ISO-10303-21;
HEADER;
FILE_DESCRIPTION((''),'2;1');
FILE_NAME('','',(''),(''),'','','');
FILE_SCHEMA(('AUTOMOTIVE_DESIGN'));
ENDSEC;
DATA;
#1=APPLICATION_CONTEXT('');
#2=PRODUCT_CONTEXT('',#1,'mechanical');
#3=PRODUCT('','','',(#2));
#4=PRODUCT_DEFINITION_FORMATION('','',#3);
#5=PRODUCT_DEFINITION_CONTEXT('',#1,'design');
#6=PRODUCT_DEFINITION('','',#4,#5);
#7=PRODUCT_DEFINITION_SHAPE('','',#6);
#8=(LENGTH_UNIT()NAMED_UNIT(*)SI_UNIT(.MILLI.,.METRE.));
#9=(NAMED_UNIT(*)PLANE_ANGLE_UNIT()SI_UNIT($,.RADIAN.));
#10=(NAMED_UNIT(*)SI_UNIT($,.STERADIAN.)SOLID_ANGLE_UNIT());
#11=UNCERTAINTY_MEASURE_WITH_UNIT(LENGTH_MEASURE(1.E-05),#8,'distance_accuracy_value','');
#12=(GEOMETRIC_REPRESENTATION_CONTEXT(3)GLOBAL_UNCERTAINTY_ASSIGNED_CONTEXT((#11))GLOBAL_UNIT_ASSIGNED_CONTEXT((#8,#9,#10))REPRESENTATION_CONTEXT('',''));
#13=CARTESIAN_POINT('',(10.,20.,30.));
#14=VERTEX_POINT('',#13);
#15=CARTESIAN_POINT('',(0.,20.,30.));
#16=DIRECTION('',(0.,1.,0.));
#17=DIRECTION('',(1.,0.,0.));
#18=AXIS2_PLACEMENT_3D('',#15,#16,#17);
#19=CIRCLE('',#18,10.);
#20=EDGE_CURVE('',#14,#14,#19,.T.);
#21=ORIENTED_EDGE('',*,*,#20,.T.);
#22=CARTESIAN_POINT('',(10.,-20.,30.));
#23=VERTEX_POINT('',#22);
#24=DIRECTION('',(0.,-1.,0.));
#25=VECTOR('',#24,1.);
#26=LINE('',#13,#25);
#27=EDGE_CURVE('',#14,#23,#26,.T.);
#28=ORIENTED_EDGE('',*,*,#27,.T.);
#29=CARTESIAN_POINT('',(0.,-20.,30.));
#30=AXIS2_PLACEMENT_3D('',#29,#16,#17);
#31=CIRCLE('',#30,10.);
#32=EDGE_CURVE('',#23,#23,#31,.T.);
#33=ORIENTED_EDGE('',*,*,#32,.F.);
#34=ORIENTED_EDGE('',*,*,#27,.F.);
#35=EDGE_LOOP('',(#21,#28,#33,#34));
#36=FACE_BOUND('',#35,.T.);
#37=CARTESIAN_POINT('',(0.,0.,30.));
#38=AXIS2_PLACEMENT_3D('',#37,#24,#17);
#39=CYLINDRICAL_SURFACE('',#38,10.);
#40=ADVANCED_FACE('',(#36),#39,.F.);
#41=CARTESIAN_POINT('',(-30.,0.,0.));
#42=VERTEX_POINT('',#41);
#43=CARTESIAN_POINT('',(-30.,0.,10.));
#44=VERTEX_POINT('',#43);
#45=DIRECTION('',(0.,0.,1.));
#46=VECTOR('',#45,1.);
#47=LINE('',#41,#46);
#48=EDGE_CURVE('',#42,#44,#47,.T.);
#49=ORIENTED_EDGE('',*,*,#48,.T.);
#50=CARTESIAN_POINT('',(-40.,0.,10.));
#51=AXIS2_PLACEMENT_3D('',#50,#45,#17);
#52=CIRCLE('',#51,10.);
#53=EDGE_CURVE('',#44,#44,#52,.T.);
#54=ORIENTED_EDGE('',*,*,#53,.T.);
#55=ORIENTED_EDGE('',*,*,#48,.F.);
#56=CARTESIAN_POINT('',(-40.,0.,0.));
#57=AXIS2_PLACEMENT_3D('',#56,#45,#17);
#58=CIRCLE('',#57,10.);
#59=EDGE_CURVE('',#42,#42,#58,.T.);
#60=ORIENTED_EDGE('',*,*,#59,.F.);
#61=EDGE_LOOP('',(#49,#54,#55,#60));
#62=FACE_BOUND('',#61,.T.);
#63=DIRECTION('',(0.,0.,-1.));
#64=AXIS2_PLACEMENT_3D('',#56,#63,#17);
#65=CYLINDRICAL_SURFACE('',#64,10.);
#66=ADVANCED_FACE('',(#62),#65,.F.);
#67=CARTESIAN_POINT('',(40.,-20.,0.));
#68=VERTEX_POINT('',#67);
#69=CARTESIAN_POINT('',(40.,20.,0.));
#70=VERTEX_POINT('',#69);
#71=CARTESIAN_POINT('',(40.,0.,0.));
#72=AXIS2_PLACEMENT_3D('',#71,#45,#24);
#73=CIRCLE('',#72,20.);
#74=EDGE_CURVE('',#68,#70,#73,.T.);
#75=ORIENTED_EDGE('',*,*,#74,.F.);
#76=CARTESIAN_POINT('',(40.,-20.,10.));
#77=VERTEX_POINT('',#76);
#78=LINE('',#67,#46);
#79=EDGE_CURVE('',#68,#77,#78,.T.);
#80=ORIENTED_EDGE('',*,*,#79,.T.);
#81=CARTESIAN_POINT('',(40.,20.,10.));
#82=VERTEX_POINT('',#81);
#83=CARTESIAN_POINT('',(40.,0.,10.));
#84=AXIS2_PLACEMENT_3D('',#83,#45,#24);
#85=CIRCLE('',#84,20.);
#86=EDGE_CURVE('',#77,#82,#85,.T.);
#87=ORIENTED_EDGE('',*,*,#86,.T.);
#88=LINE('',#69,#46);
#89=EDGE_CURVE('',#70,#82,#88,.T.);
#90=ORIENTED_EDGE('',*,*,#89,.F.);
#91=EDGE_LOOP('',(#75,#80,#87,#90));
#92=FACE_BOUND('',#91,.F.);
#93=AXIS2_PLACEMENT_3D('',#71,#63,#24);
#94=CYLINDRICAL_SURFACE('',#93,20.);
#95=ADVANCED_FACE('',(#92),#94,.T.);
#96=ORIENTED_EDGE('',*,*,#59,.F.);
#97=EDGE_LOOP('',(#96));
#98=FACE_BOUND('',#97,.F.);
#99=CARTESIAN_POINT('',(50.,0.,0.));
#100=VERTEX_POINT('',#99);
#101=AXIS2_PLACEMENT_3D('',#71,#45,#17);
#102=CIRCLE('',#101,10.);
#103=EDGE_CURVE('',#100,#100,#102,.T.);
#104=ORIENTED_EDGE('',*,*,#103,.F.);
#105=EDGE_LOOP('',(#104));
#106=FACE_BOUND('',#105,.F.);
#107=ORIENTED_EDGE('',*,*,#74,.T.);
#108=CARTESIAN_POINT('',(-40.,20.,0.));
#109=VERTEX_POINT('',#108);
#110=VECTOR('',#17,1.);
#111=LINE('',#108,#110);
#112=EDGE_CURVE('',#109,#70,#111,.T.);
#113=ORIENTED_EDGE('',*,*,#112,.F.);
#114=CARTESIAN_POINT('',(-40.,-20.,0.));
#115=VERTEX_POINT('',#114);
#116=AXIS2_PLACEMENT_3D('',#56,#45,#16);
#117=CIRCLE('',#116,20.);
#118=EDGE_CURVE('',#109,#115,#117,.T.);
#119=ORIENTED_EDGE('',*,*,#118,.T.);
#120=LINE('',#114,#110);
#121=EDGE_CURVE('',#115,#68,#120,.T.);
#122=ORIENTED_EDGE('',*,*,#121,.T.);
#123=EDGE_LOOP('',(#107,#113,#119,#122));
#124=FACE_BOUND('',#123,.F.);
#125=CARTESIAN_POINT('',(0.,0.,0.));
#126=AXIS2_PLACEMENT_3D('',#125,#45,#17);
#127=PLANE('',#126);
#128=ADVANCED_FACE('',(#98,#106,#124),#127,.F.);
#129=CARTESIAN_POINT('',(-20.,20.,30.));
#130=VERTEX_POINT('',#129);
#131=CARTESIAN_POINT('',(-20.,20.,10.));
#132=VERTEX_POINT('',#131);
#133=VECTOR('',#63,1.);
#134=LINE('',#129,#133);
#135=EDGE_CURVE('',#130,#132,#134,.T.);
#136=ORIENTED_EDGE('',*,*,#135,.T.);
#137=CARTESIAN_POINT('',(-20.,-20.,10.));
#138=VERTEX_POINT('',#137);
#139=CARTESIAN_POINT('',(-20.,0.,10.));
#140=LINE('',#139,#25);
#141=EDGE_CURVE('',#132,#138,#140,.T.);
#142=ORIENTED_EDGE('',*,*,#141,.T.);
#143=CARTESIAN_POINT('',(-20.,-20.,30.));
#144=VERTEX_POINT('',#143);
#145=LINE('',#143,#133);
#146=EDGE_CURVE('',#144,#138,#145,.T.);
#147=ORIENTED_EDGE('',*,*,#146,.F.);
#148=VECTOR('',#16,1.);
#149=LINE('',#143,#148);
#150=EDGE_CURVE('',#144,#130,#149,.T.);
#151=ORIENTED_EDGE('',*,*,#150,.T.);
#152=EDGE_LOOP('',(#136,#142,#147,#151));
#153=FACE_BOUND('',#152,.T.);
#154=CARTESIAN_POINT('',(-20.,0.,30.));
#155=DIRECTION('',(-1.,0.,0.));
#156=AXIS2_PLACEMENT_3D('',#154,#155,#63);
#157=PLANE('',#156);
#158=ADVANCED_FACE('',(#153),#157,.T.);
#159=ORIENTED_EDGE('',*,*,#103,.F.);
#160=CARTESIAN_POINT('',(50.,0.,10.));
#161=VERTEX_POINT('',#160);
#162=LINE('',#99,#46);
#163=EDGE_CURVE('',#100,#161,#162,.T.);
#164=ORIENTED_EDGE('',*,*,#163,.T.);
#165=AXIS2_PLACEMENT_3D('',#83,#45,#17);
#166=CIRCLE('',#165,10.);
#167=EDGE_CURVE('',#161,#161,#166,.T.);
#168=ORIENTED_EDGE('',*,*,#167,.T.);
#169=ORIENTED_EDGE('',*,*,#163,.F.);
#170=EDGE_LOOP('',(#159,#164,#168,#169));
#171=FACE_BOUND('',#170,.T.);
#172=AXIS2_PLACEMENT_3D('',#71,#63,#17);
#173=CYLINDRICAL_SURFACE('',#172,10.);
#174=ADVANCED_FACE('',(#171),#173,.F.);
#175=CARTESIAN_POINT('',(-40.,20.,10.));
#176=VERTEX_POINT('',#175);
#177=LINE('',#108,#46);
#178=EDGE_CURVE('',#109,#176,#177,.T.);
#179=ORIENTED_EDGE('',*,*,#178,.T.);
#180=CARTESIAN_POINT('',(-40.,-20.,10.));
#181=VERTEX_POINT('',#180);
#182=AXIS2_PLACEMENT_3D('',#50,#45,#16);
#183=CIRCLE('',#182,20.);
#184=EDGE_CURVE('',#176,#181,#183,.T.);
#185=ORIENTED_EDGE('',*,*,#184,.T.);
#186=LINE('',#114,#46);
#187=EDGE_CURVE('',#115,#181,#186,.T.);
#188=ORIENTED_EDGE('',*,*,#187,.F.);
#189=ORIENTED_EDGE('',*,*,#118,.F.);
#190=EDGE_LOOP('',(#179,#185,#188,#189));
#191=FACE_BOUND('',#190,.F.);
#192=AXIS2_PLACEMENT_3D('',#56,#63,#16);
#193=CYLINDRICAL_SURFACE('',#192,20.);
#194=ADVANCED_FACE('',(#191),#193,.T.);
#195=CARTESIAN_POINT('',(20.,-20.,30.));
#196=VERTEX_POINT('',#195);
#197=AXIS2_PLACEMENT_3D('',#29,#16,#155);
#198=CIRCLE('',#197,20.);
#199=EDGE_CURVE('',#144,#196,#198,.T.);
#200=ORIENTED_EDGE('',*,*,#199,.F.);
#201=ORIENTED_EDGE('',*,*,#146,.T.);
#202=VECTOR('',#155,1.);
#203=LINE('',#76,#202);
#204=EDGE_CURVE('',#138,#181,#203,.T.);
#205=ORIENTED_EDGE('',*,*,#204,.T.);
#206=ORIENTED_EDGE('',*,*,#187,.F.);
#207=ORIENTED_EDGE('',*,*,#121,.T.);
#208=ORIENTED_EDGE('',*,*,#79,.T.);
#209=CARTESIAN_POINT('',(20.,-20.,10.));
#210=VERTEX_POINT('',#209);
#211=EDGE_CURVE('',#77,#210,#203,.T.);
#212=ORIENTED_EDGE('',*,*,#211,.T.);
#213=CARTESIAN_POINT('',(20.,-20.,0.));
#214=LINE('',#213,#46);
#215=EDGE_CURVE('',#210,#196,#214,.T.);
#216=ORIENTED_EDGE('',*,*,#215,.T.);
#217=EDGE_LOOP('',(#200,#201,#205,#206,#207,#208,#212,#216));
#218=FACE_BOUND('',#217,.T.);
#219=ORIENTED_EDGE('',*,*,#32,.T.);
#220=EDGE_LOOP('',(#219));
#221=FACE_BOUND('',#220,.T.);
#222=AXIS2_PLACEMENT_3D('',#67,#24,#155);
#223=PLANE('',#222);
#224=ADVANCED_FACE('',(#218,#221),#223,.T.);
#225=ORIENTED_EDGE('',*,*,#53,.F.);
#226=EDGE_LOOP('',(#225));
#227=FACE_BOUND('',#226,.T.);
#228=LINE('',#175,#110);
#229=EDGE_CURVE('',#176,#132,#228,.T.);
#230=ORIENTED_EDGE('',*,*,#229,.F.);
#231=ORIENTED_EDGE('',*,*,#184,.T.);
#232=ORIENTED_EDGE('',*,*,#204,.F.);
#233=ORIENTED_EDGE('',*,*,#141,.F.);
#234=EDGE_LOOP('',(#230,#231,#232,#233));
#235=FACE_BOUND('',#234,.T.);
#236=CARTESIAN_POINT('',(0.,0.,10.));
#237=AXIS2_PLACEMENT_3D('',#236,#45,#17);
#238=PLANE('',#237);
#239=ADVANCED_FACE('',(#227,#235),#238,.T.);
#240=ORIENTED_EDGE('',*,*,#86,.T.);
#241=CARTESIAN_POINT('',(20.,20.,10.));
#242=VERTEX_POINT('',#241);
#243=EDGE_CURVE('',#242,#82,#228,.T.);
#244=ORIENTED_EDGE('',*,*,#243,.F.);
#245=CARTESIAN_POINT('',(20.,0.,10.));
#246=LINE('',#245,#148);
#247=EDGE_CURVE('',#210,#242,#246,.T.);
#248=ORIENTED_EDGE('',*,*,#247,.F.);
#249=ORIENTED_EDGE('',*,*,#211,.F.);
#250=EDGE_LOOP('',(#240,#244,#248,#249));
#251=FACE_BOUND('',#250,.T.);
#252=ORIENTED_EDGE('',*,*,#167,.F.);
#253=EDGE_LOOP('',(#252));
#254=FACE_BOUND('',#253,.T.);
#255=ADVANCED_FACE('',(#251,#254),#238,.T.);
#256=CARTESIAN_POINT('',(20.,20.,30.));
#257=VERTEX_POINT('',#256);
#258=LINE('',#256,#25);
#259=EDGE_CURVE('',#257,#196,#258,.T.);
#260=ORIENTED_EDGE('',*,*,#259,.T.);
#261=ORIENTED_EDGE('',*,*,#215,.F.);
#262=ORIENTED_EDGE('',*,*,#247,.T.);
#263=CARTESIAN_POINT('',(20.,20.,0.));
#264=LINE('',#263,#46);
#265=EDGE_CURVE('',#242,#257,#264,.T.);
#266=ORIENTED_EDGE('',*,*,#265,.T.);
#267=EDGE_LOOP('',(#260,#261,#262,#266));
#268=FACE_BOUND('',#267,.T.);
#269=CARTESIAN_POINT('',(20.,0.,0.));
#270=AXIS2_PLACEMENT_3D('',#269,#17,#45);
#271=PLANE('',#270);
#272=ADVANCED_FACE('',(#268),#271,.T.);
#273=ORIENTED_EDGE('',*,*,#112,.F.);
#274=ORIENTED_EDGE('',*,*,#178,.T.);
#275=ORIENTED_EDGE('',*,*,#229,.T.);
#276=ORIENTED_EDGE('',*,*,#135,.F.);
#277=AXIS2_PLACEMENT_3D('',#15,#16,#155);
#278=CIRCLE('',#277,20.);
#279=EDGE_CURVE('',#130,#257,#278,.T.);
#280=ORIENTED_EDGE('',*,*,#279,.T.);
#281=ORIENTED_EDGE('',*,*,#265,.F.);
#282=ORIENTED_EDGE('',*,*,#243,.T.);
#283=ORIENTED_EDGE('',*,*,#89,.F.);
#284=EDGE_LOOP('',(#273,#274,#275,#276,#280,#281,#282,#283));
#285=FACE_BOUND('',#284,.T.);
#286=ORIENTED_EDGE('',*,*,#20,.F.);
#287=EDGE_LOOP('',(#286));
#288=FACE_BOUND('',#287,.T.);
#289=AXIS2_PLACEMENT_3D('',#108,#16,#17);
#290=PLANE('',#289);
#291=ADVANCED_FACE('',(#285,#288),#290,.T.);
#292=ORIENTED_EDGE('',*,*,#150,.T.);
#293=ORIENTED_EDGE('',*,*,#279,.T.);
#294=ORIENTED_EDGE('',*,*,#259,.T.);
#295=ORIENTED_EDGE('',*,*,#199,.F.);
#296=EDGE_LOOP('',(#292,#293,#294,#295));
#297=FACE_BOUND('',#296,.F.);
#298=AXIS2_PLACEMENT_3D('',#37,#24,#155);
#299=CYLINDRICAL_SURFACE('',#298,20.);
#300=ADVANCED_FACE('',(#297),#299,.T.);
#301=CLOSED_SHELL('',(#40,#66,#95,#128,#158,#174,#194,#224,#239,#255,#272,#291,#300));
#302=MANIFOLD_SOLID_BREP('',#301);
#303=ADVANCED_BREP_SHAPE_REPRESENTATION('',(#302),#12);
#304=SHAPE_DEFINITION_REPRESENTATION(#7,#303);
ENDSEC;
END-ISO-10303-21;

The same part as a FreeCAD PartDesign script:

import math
import FreeCAD as App
import Part
import Sketcher

V = App.Vector

doc = App.newDocument("Part")
body = doc.addObject("PartDesign::Body", "Body")

# Sketch on XY plane
sketch1 = body.newObject("Sketcher::SketchObject", "Sketch")
sketch1.AttachmentSupport = (doc.getObject("XY_Plane"), [""])
sketch1.MapMode = "FlatFace"
sketch1.addGeometry([
    Part.LineSegment(V(-40, -20, 0), V(40, -20, 0)),  # 0
    Part.ArcOfCircle(Part.Circle(V(40, 0, 0), V(0, 0, 1), 20), math.radians(-90), math.radians(90)),  # 1
    Part.LineSegment(V(40, 20, 0), V(-40, 20, 0)),  # 2
    Part.ArcOfCircle(Part.Circle(V(-40, 0, 0), V(0, 0, 1), 20), math.radians(90), math.radians(270)),  # 3
    Part.Circle(V(-40, 0, 0), V(0, 0, 1), 10),  # 4
    Part.Circle(V(40, 0, 0), V(0, 0, 1), 10),  # 5
], False)
sketch1.addConstraint([
    Sketcher.Constraint("Tangent", 0, 2, 1, 1),
    Sketcher.Constraint("Tangent", 1, 2, 2, 1),
    Sketcher.Constraint("Tangent", 2, 2, 3, 1),
    Sketcher.Constraint("Tangent", 3, 2, 0, 1),
    Sketcher.Constraint("Horizontal", 0),
    Sketcher.Constraint("Horizontal", 2),
    Sketcher.Constraint("Coincident", 4, 3, 3, 3),
    Sketcher.Constraint("Coincident", 5, 3, 1, 3),
    Sketcher.Constraint("Equal", 4, 5),
    Sketcher.Constraint("Symmetric", 1, 3, 3, 3, -1, 1),
    Sketcher.Constraint("Radius", 1, 20.0),
    Sketcher.Constraint("DistanceX", 0, 1, 0, 2, 80.0),
    Sketcher.Constraint("Diameter", 4, 20.0),
])
pad1 = body.newObject("PartDesign::Pad", "Pad")
pad1.Profile = sketch1
pad1.Length = 10

# Sketch on XZ plane
sketch2 = body.newObject("Sketcher::SketchObject", "Sketch001")
sketch2.AttachmentSupport = (doc.getObject("XZ_Plane"), [""])
sketch2.MapMode = "FlatFace"
sketch2.addGeometry([
    Part.LineSegment(V(20, 0, 0), V(-20, 0, 0)),  # 0
    Part.LineSegment(V(-20, 0, 0), V(-20, 30, 0)),  # 1
    Part.ArcOfCircle(Part.Circle(V(0, 30, 0), V(0, 0, 1), 20), math.radians(0), math.radians(180)),  # 2
    Part.LineSegment(V(20, 30, 0), V(20, 0, 0)),  # 3
    Part.Circle(V(0, 30, 0), V(0, 0, 1), 10),  # 4
], False)
sketch2.addConstraint([
    Sketcher.Constraint("Coincident", 0, 2, 1, 1),
    Sketcher.Constraint("Tangent", 1, 2, 2, 2),
    Sketcher.Constraint("Tangent", 2, 1, 3, 1),
    Sketcher.Constraint("Coincident", 3, 2, 0, 1),
    Sketcher.Constraint("Horizontal", 0),
    Sketcher.Constraint("Vertical", 1),
    Sketcher.Constraint("Vertical", 3),
    Sketcher.Constraint("Coincident", 4, 3, 2, 3),
    Sketcher.Constraint("Symmetric", 0, 2, 3, 2, -1, 1),
    Sketcher.Constraint("Diameter", 4, 20.0),
    Sketcher.Constraint("Radius", 2, 20.0),
    Sketcher.Constraint("DistanceY", 1, 1, 1, 2, 30.0),
])
pad2 = body.newObject("PartDesign::Pad", "Pad001")
pad2.Profile = sketch2
pad2.Length = 40
pad2.Midplane = True

doc.recompute()
